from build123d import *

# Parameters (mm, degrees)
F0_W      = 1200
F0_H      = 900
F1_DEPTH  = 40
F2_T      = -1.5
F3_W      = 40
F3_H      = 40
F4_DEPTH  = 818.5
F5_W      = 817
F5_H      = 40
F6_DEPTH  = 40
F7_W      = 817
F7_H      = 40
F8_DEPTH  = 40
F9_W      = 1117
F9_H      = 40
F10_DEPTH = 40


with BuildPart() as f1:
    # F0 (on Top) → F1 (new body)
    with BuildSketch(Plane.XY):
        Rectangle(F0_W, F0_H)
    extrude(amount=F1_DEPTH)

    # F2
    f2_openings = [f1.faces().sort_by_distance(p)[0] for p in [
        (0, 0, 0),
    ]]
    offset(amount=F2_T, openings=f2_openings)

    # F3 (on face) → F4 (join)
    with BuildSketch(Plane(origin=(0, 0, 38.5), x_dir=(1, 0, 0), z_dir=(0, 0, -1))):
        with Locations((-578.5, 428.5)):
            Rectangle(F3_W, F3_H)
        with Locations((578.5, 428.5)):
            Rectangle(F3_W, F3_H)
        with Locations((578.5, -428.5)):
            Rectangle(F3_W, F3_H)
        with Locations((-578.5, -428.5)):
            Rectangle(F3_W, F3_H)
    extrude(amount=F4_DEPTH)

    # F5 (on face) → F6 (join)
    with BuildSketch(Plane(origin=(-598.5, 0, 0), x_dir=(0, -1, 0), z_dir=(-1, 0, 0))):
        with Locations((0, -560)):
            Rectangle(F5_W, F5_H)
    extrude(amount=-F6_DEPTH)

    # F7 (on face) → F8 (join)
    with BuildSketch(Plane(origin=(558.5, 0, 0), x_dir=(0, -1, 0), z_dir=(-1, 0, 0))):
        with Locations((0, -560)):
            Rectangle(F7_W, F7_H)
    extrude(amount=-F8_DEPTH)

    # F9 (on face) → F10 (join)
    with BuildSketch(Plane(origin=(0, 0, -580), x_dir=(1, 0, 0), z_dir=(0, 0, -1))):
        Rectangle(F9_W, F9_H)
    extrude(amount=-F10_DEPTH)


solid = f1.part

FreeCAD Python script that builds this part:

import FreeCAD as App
import Part
import Sketcher


def faces_at(feature, points):
    """Names of the faces that lie closest to the given points."""
    faces = feature.Shape.Faces
    near = lambda p: min(range(len(faces)), key=lambda i: faces[i].distToShape(Part.Vertex(*p))[0])
    return sorted({f"Face{near(p) + 1}" for p in points})

doc = App.newDocument("Part")
body = doc.addObject("PartDesign::Body", "Body")

# Sketch on XY plane
sketch1 = body.newObject("Sketcher::SketchObject", "Sketch")
sketch1.AttachmentSupport = (doc.getObject("XY_Plane"), [""])
sketch1.MapMode = "FlatFace"
sketch1.addGeometry([
    Part.LineSegment(App.Vector(-600, 450, 0), App.Vector(-600, -450, 0)),
    Part.LineSegment(App.Vector(-600, -450, 0), App.Vector(600, -450, 0)),
    Part.LineSegment(App.Vector(600, -450, 0), App.Vector(600, 450, 0)),
    Part.LineSegment(App.Vector(600, 450, 0), App.Vector(-600, 450, 0)),
], False)
sketch1.addConstraint([
    Sketcher.Constraint("Coincident", 0, 2, 1, 1),
    Sketcher.Constraint("Coincident", 1, 2, 2, 1),
    Sketcher.Constraint("Coincident", 2, 2, 3, 1),
    Sketcher.Constraint("Coincident", 3, 2, 0, 1),
    Sketcher.Constraint("Vertical", 0),
    Sketcher.Constraint("Horizontal", 1),
    Sketcher.Constraint("Vertical", 2),
    Sketcher.Constraint("Horizontal", 3),
    Sketcher.Constraint("Symmetric", 0, 2, 2, 2, -1, 1),
    Sketcher.Constraint("DistanceX", 1, 1, 1, 2, 1200.0),
    Sketcher.Constraint("DistanceY", 0, 2, 0, 1, 900.0),
])
pad1 = body.newObject("PartDesign::Pad", "Pad")
pad1.Profile = sketch1
pad1.Length = 40
doc.recompute()

thickness = body.newObject("PartDesign::Thickness", "Thickness")
thickness.Base = (pad1, faces_at(pad1, [(0, 0, 0)]))
thickness.Value = 1.5
thickness.Reversed = True
thickness.Join = "Arc"

# Sketch on XY plane
sketch2 = body.newObject("Sketcher::SketchObject", "Sketch001")
sketch2.AttachmentSupport = (doc.getObject("XY_Plane"), [""])
sketch2.MapMode = "FlatFace"
sketch2.AttachmentOffset = App.Placement(App.Vector(0, 0, 38.5), App.Rotation())
sketch2.addGeometry([
    Part.LineSegment(App.Vector(-598, -448, 0), App.Vector(-598, -408, 0)),  # 0
    Part.LineSegment(App.Vector(-598, -408, 0), App.Vector(-558, -408, 0)),  # 1
    Part.LineSegment(App.Vector(-558, -408, 0), App.Vector(-558, -448, 0)),  # 2
    Part.LineSegment(App.Vector(-558, -448, 0), App.Vector(-598, -448, 0)),  # 3
    Part.LineSegment(App.Vector(558, -448, 0), App.Vector(558, -408, 0)),  # 4
    Part.LineSegment(App.Vector(558, -408, 0), App.Vector(598, -408, 0)),  # 5
    Part.LineSegment(App.Vector(598, -408, 0), App.Vector(598, -448, 0)),  # 6
    Part.LineSegment(App.Vector(598, -448, 0), App.Vector(558, -448, 0)),  # 7
    Part.LineSegment(App.Vector(558, 408, 0), App.Vector(558, 448, 0)),  # 8
    Part.LineSegment(App.Vector(558, 448, 0), App.Vector(598, 448, 0)),  # 9
    Part.LineSegment(App.Vector(598, 448, 0), App.Vector(598, 408, 0)),  # 10
    Part.LineSegment(App.Vector(598, 408, 0), App.Vector(558, 408, 0)),  # 11
    Part.LineSegment(App.Vector(-598, 408, 0), App.Vector(-598, 448, 0)),  # 12
    Part.LineSegment(App.Vector(-598, 448, 0), App.Vector(-558, 448, 0)),  # 13
    Part.LineSegment(App.Vector(-558, 448, 0), App.Vector(-558, 408, 0)),  # 14
    Part.LineSegment(App.Vector(-558, 408, 0), App.Vector(-598, 408, 0)),  # 15
], False)
sketch2.addConstraint([
    Sketcher.Constraint("Coincident", 0, 2, 1, 1),
    Sketcher.Constraint("Coincident", 1, 2, 2, 1),
    Sketcher.Constraint("Coincident", 2, 2, 3, 1),
    Sketcher.Constraint("Coincident", 3, 2, 0, 1),
    Sketcher.Constraint("Coincident", 4, 2, 5, 1),
    Sketcher.Constraint("Coincident", 5, 2, 6, 1),
    Sketcher.Constraint("Coincident", 6, 2, 7, 1),
    Sketcher.Constraint("Coincident", 7, 2, 4, 1),
    Sketcher.Constraint("Coincident", 8, 2, 9, 1),
    Sketcher.Constraint("Coincident", 9, 2, 10, 1),
    Sketcher.Constraint("Coincident", 10, 2, 11, 1),
    Sketcher.Constraint("Coincident", 11, 2, 8, 1),
    Sketcher.Constraint("Coincident", 12, 2, 13, 1),
    Sketcher.Constraint("Coincident", 13, 2, 14, 1),
    Sketcher.Constraint("Coincident", 14, 2, 15, 1),
    Sketcher.Constraint("Coincident", 15, 2, 12, 1),
    Sketcher.Constraint("Vertical", 0),
    Sketcher.Constraint("Horizontal", 1),
    Sketcher.Constraint("Vertical", 2),
    Sketcher.Constraint("Horizontal", 3),
    Sketcher.Constraint("Vertical", 4),
    Sketcher.Constraint("Horizontal", 5),
    Sketcher.Constraint("Vertical", 6),
    Sketcher.Constraint("Horizontal", 7),
    Sketcher.Constraint("Vertical", 8),
    Sketcher.Constraint("Horizontal", 9),
    Sketcher.Constraint("Vertical", 10),
    Sketcher.Constraint("Horizontal", 11),
    Sketcher.Constraint("Vertical", 12),
    Sketcher.Constraint("Horizontal", 13),
    Sketcher.Constraint("Vertical", 14),
    Sketcher.Constraint("Horizontal", 15),
    Sketcher.Constraint("Symmetric", 2, 2, 8, 2, -1, 1),
    Sketcher.Constraint("Symmetric", 0, 2, 10, 2, -1, 1),
    Sketcher.Constraint("Symmetric", 6, 2, 12, 2, -1, 1),
    Sketcher.Constraint("Symmetric", 4, 2, 14, 2, -1, 1),
    Sketcher.Constraint("Symmetric", 1, 2, 4, 2, -2),
    Sketcher.Constraint("Symmetric", 3, 2, 6, 2, -2),
    Sketcher.Constraint("Equal", 15, 0),
    Sketcher.Constraint("DistanceX", 1, 1, 1, 2, 40.0),
    Sketcher.Constraint("DistanceX", 1, 2, 4, 2, 1117.0),
    Sketcher.Constraint("DistanceY", 4, 2, 8, 2, 857.0),
])
pad2 = body.newObject("PartDesign::Pad", "Pad001")
pad2.Profile = sketch2
pad2.Length = 818.5
pad2.Reversed = True

# Sketch on YZ plane
sketch3 = body.newObject("Sketcher::SketchObject", "Sketch002")
sketch3.AttachmentSupport = (doc.getObject("YZ_Plane"), [""])
sketch3.MapMode = "FlatFace"
sketch3.AttachmentOffset = App.Placement(App.Vector(0, 0, -598.5), App.Rotation())
sketch3.addGeometry([
    Part.LineSegment(App.Vector(408, -540, 0), App.Vector(408, -580, 0)),
    Part.LineSegment(App.Vector(408, -580, 0), App.Vector(-408, -580, 0)),
    Part.LineSegment(App.Vector(-408, -580, 0), App.Vector(-408, -540, 0)),
    Part.LineSegment(App.Vector(-408, -540, 0), App.Vector(408, -540, 0)),
], False)
sketch3.addConstraint([
    Sketcher.Constraint("Coincident", 0, 2, 1, 1),
    Sketcher.Constraint("Coincident", 1, 2, 2, 1),
    Sketcher.Constraint("Coincident", 2, 2, 3, 1),
    Sketcher.Constraint("Coincident", 3, 2, 0, 1),
    Sketcher.Constraint("Vertical", 0),
    Sketcher.Constraint("Horizontal", 1),
    Sketcher.Constraint("Vertical", 2),
    Sketcher.Constraint("Horizontal", 3),
    Sketcher.Constraint("DistanceX", 1, 2, 1, 1, 817.0),
    Sketcher.Constraint("DistanceY", 0, 2, 0, 1, 40.0),
    Sketcher.Constraint("DistanceY", 0, 2, -1, 1, 580.0),
    Sketcher.Constraint("DistanceX", -1, 1, 0, 2, 408.5),
])
pad3 = body.newObject("PartDesign::Pad", "Pad002")
pad3.Profile = sketch3
pad3.Length = 40

# Sketch on YZ plane
sketch4 = body.newObject("Sketcher::SketchObject", "Sketch003")
sketch4.AttachmentSupport = (doc.getObject("YZ_Plane"), [""])
sketch4.MapMode = "FlatFace"
sketch4.AttachmentOffset = App.Placement(App.Vector(0, 0, 558.5), App.Rotation())
sketch4.addGeometry([
    Part.LineSegment(App.Vector(408, -540, 0), App.Vector(408, -580, 0)),
    Part.LineSegment(App.Vector(408, -580, 0), App.Vector(-408, -580, 0)),
    Part.LineSegment(App.Vector(-408, -580, 0), App.Vector(-408, -540, 0)),
    Part.LineSegment(App.Vector(-408, -540, 0), App.Vector(408, -540, 0)),
], False)
sketch4.addConstraint([
    Sketcher.Constraint("Coincident", 0, 2, 1, 1),
    Sketcher.Constraint("Coincident", 1, 2, 2, 1),
    Sketcher.Constraint("Coincident", 2, 2, 3, 1),
    Sketcher.Constraint("Coincident", 3, 2, 0, 1),
    Sketcher.Constraint("Vertical", 0),
    Sketcher.Constraint("Horizontal", 1),
    Sketcher.Constraint("Vertical", 2),
    Sketcher.Constraint("Horizontal", 3),
    Sketcher.Constraint("DistanceX", 1, 2, 1, 1, 817.0),
    Sketcher.Constraint("DistanceY", 0, 2, 0, 1, 40.0),
    Sketcher.Constraint("DistanceY", 0, 2, -1, 1, 580.0),
    Sketcher.Constraint("DistanceX", -1, 1, 0, 2, 408.5),
])
pad4 = body.newObject("PartDesign::Pad", "Pad003")
pad4.Profile = sketch4
pad4.Length = 40

# Sketch on XY plane
sketch5 = body.newObject("Sketcher::SketchObject", "Sketch004")
sketch5.AttachmentSupport = (doc.getObject("XY_Plane"), [""])
sketch5.MapMode = "FlatFace"
sketch5.AttachmentOffset = App.Placement(App.Vector(0, 0, -580), App.Rotation())
sketch5.addGeometry([
    Part.LineSegment(App.Vector(-558, -20, 0), App.Vector(-558, 20, 0)),
    Part.LineSegment(App.Vector(-558, 20, 0), App.Vector(558, 20, 0)),
    Part.LineSegment(App.Vector(558, 20, 0), App.Vector(558, -20, 0)),
    Part.LineSegment(App.Vector(558, -20, 0), App.Vector(-558, -20, 0)),
], False)
sketch5.addConstraint([
    Sketcher.Constraint("Coincident", 0, 2, 1, 1),
    Sketcher.Constraint("Coincident", 1, 2, 2, 1),
    Sketcher.Constraint("Coincident", 2, 2, 3, 1),
    Sketcher.Constraint("Coincident", 3, 2, 0, 1),
    Sketcher.Constraint("Vertical", 0),
    Sketcher.Constraint("Horizontal", 1),
    Sketcher.Constraint("Vertical", 2),
    Sketcher.Constraint("Horizontal", 3),
    Sketcher.Constraint("Symmetric", 0, 2, 2, 2, -1, 1),
    Sketcher.Constraint("DistanceX", 1, 1, 1, 2, 1117.0),
    Sketcher.Constraint("DistanceY", 0, 1, 0, 2, 40.0),
])
pad5 = body.newObject("PartDesign::Pad", "Pad004")
pad5.Profile = sketch5
pad5.Length = 40

doc.recompute()
